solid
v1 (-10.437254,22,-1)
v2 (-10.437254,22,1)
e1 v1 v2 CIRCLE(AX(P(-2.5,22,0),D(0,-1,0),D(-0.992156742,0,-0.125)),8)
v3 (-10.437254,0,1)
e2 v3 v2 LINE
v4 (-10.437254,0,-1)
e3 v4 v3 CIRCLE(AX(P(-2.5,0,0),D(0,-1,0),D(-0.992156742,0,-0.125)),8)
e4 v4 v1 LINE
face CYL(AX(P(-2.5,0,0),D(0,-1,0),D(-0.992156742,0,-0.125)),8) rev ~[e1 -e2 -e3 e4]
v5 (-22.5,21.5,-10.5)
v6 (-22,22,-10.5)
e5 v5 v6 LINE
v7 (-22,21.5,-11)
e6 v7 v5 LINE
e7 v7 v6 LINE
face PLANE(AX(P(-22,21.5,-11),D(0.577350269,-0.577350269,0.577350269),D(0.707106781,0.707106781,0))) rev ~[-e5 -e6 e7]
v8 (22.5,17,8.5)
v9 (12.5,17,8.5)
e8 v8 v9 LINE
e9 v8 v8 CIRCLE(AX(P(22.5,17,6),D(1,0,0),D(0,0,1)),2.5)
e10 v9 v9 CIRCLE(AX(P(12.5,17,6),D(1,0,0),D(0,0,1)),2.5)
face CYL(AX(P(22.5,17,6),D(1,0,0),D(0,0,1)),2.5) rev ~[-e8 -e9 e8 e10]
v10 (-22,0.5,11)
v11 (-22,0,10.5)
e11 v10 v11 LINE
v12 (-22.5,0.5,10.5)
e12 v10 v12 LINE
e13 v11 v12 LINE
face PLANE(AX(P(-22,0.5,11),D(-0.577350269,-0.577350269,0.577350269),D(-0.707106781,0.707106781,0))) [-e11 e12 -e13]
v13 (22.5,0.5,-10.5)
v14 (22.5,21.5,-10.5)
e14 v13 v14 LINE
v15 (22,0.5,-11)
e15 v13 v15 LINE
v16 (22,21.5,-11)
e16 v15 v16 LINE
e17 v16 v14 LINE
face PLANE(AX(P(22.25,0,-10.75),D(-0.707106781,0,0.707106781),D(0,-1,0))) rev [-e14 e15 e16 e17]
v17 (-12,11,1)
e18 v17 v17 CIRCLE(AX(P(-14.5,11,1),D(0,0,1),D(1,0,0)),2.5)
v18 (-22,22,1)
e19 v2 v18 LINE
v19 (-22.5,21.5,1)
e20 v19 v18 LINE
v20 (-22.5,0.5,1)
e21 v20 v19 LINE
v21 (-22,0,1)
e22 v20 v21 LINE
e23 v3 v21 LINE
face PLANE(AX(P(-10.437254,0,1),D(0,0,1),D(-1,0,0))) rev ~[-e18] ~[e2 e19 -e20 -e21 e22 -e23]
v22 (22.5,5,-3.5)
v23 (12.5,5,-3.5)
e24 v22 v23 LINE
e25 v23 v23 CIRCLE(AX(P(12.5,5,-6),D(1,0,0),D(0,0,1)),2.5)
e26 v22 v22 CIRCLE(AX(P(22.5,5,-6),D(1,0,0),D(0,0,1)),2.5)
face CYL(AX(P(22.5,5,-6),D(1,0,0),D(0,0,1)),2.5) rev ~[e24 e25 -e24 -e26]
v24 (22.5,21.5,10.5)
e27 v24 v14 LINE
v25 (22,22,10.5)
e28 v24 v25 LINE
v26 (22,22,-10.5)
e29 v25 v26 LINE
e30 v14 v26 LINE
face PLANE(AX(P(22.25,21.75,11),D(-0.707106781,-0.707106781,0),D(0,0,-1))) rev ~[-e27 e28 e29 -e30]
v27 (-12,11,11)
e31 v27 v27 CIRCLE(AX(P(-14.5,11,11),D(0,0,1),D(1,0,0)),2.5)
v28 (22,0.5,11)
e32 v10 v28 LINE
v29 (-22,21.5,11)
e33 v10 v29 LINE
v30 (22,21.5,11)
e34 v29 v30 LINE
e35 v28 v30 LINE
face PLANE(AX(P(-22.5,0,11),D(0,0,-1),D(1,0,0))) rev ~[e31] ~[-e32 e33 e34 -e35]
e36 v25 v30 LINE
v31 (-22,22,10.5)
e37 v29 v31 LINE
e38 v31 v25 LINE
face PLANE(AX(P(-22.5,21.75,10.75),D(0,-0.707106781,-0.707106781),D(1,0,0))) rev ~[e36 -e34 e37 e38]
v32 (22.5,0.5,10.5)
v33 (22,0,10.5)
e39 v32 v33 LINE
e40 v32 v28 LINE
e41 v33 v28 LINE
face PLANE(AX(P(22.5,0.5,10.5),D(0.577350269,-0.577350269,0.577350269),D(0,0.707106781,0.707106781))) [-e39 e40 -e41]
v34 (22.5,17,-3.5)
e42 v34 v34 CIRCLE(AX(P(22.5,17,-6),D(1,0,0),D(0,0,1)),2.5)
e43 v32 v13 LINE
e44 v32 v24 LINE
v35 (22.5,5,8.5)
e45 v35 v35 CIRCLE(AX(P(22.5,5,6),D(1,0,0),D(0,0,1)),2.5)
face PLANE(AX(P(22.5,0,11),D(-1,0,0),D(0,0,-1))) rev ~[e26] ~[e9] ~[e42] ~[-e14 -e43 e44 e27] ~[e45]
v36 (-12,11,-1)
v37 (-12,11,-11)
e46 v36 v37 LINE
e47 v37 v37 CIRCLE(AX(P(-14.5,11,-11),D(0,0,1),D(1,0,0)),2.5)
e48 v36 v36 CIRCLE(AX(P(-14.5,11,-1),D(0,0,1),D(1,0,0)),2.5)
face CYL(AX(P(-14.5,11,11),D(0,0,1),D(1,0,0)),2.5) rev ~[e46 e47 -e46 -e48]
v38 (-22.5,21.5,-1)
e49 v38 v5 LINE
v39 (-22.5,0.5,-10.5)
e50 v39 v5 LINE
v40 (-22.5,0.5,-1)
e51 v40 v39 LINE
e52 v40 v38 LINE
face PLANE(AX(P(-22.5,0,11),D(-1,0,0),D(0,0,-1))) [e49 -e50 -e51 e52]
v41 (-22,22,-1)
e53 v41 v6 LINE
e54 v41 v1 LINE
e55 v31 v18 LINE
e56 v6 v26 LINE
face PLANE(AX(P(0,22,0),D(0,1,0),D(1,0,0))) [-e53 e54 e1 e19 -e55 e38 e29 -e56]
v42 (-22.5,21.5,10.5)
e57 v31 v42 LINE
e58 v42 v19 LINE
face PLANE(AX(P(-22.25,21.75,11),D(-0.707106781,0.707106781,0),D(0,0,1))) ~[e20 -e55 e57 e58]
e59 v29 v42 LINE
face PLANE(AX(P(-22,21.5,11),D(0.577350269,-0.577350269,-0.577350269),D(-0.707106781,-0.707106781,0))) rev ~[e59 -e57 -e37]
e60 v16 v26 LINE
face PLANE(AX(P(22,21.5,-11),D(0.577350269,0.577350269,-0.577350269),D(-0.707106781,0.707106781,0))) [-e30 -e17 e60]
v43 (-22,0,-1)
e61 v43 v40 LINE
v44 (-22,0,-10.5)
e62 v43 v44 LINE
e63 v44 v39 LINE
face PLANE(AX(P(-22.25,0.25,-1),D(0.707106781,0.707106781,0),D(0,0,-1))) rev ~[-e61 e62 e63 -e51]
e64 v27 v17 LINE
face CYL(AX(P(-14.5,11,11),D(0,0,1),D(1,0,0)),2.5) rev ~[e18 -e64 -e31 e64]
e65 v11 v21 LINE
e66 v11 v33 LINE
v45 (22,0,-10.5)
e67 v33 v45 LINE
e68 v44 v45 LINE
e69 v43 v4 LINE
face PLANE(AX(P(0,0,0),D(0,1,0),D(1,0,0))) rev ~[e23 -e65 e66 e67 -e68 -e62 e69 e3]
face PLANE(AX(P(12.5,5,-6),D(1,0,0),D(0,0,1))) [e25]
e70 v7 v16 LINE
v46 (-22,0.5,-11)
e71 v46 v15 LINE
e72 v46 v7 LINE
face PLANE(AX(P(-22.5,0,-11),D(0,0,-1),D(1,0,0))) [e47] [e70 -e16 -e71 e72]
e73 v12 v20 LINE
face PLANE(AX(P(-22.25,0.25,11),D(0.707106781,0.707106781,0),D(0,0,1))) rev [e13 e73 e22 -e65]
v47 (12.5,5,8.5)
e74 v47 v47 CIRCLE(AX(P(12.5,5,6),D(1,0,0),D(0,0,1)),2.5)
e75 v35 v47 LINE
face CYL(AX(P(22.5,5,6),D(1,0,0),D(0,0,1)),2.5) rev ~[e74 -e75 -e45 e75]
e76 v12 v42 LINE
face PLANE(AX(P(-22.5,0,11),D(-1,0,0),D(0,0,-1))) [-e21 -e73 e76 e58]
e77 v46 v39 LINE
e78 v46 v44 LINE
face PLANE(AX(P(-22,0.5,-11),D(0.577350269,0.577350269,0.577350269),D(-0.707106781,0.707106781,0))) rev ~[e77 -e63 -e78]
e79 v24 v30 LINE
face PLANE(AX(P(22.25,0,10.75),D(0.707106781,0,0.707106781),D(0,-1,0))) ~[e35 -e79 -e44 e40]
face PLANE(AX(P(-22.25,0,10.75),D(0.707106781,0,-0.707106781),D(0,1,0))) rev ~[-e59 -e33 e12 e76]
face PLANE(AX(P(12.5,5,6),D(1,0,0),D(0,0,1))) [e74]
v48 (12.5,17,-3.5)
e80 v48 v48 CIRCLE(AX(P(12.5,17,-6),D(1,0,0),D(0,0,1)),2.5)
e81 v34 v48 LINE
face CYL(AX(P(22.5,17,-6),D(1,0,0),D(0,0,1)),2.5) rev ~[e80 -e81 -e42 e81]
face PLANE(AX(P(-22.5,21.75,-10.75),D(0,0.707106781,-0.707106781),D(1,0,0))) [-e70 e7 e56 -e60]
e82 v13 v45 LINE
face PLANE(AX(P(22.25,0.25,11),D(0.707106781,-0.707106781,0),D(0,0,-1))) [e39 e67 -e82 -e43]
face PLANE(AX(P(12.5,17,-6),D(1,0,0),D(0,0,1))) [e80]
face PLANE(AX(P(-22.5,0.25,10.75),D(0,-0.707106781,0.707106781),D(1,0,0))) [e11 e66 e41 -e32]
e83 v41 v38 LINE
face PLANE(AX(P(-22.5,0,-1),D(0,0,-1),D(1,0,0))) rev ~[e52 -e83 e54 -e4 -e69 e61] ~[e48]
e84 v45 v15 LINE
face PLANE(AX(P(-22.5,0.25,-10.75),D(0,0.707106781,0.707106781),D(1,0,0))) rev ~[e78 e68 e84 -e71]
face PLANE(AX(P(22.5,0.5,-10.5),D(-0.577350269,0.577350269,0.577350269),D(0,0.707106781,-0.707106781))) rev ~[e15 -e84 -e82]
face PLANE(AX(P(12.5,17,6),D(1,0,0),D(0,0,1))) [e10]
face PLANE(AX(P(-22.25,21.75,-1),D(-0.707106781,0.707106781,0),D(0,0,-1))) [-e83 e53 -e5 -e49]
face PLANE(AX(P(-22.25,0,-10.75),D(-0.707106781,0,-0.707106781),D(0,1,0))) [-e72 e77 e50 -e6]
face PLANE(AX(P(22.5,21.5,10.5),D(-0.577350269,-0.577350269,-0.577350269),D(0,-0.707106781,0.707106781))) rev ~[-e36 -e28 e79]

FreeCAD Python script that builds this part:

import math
import FreeCAD as App
import Part
import Sketcher
Q = App.Units.Quantity


def edges_at(feature, points):
    """Names of the edges that pass closest to the given points."""
    edges = feature.Shape.Edges
    near = lambda p: min(range(len(edges)), key=lambda i: edges[i].distToShape(Part.Vertex(*p))[0])
    return sorted({f"Edge{near(p) + 1}" for p in points})

doc = App.newDocument("Part")
body = doc.addObject("PartDesign::Body", "Body")

# Sketch on XZ plane
sketch1 = doc.addObject("Sketcher::SketchObject", "Sketch")
body.addObject(sketch1)
sketch1.AttachmentSupport = (doc.XZ_Plane, [""])
sketch1.MapMode = "FlatFace"
sketch1.addGeometry([
    Part.LineSegment(App.Vector(-22, -11, 0), App.Vector(-22, 11, 0)),
    Part.LineSegment(App.Vector(-22, 11, 0), App.Vector(22, 11, 0)),
    Part.LineSegment(App.Vector(22, 11, 0), App.Vector(22, -11, 0)),
    Part.LineSegment(App.Vector(22, -11, 0), App.Vector(-22, -11, 0)),
], False)
sketch1.addConstraint([
    Sketcher.Constraint("Coincident", 0, 2, 1, 1),
    Sketcher.Constraint("Coincident", 1, 2, 2, 1),
    Sketcher.Constraint("Coincident", 2, 2, 3, 1),
    Sketcher.Constraint("Coincident", 3, 2, 0, 1),
    Sketcher.Constraint("Vertical", 0),
    Sketcher.Constraint("Horizontal", 1),
    Sketcher.Constraint("Vertical", 2),
    Sketcher.Constraint("Horizontal", 3),
    Sketcher.Constraint("Symmetric", 0, 2, 2, 2, -1, 1),
    Sketcher.Constraint("DistanceX", 1, 1, 1, 2, Q("45 mm")),
    Sketcher.Constraint("DistanceY", 0, 1, 0, 2, Q("22 mm")),
])
pad1 = doc.addObject("PartDesign::Pad", "Pad")
body.addObject(pad1)
pad1.Profile = sketch1
pad1.Length = 22
pad1.Reversed = True

# Sketch on XZ plane
sketch2 = doc.addObject("Sketcher::SketchObject", "Sketch001")
body.addObject(sketch2)
sketch2.AttachmentSupport = (doc.XZ_Plane, [""])
sketch2.MapMode = "FlatFace"
sketch2.addGeometry([
    Part.LineSegment(App.Vector(-22.5, -1, 0), App.Vector(-22.5, 1, 0)),
    Part.LineSegment(App.Vector(-22.5, 1, 0), App.Vector(-10.4, 1, 0)),
    Part.ArcOfCircle(Part.Circle(App.Vector(-2.5, 0, 0), App.Vector(0, 0, 1), 8), math.radians(-173), math.radians(173)),
    Part.LineSegment(App.Vector(-10.4, -1, 0), App.Vector(-22.5, -1, 0)),
], False)
sketch2.addConstraint([
    Sketcher.Constraint("Coincident", 0, 2, 1, 1),
    Sketcher.Constraint("Coincident", 1, 2, 2, 2),
    Sketcher.Constraint("Coincident", 2, 1, 3, 1),
    Sketcher.Constraint("Coincident", 3, 2, 0, 1),
    Sketcher.Constraint("Vertical", 0),
    Sketcher.Constraint("Horizontal", 1),
    Sketcher.Constraint("Horizontal", 3),
    Sketcher.Constraint("Symmetric", 1, 2, 2, 1, -1),
    Sketcher.Constraint("Radius", 2, Q("8 mm")),
    Sketcher.Constraint("DistanceY", 0, 1, 0, 2, Q("2 mm")),
    Sketcher.Constraint("DistanceX", 0, 2, 2, 3, Q("20 mm")),
    Sketcher.Constraint("DistanceX", 2, 3, -1, 1, Q("2.5 mm")),
])
pocket1 = doc.addObject("PartDesign::Pocket", "Pocket")
body.addObject(pocket1)
pocket1.Profile = sketch2
pocket1.Length = 22

# Sketch on YZ plane
sketch3 = doc.addObject("Sketcher::SketchObject", "Sketch002")
body.addObject(sketch3)
sketch3.AttachmentSupport = (doc.YZ_Plane, [""])
sketch3.MapMode = "FlatFace"
sketch3.AttachmentOffset = App.Placement(App.Vector(0, 0, 22.5), App.Rotation())
sketch3.addGeometry([
    Part.Circle(App.Vector(17, 6, 0), App.Vector(0, 0, 1), 2.5),
    Part.Circle(App.Vector(5, 6, 0), App.Vector(0, 0, 1), 2.5),
    Part.Circle(App.Vector(17, -6, 0), App.Vector(0, 0, 1), 2.5),
    Part.Circle(App.Vector(5, -6, 0), App.Vector(0, 0, 1), 2.5),
], False)
sketch3.addConstraint([
    Sketcher.Constraint("Equal", 0, 1),
    Sketcher.Constraint("Equal", 1, 2),
    Sketcher.Constraint("Equal", 2, 3),
    Sketcher.Constraint("Symmetric", 0, 3, 2, 3, -1),
    Sketcher.Constraint("Symmetric", 1, 3, 3, 3, -1),
    Sketcher.Constraint("Horizontal", 0, 3, 1, 3),
    Sketcher.Constraint("Diameter", 0, Q("5 mm")),
    Sketcher.Constraint("DistanceX", -1, 1, 0, 3, Q("17 mm")),
    Sketcher.Constraint("DistanceY", -1, 1, 0, 3, Q("6 mm")),
    Sketcher.Constraint("DistanceX", -1, 1, 1, 3, Q("5 mm")),
])
pocket2 = doc.addObject("PartDesign::Pocket", "Pocket001")
body.addObject(pocket2)
pocket2.Profile = sketch3
pocket2.Length = 10

# Sketch on XY plane
sketch4 = doc.addObject("Sketcher::SketchObject", "Sketch003")
body.addObject(sketch4)
sketch4.AttachmentSupport = (doc.XY_Plane, [""])
sketch4.MapMode = "FlatFace"
sketch4.AttachmentOffset = App.Placement(App.Vector(0, 0, 11), App.Rotation())
sketch4.addGeometry(Part.Circle(App.Vector(-14.5, 11, 0), App.Vector(0, 0, 1), 2.5), False)
sketch4.addConstraint([
    Sketcher.Constraint("Diameter", 0, Q("5 mm")),
    Sketcher.Constraint("DistanceY", -1, 1, 0, 3, Q("11 mm")),
    Sketcher.Constraint("DistanceX", 0, 3, -1, 1, Q("14.5 mm")),
])
pocket3 = doc.addObject("PartDesign::Pocket", "Pocket002")
body.addObject(pocket3)
pocket3.Profile = sketch4
pocket3.Length = 22
doc.recompute()

chamfer = doc.addObject("PartDesign::Chamfer", "Chamfer")
body.addObject(chamfer)
chamfer.Base = (pocket3, edges_at(pocket3, [
    (-22.5, 22, -6),
    (-22.5, 0, 6),
    (-22.5, 22, 6),
    (0, 22, 11),
    (22.5, 22, 0),
    (0, 0, 11),
    (-22.5, 0, -6),
    (0, 0, -11),
    (22.5, 0, 0),
    (22.5, 11, 11),
    (-22.5, 11, 11),
    (-22.5, 11, -11),
    (22.5, 11, -11),
    (0, 22, -11),
]))
chamfer.Size = 0.5

doc.recompute()
